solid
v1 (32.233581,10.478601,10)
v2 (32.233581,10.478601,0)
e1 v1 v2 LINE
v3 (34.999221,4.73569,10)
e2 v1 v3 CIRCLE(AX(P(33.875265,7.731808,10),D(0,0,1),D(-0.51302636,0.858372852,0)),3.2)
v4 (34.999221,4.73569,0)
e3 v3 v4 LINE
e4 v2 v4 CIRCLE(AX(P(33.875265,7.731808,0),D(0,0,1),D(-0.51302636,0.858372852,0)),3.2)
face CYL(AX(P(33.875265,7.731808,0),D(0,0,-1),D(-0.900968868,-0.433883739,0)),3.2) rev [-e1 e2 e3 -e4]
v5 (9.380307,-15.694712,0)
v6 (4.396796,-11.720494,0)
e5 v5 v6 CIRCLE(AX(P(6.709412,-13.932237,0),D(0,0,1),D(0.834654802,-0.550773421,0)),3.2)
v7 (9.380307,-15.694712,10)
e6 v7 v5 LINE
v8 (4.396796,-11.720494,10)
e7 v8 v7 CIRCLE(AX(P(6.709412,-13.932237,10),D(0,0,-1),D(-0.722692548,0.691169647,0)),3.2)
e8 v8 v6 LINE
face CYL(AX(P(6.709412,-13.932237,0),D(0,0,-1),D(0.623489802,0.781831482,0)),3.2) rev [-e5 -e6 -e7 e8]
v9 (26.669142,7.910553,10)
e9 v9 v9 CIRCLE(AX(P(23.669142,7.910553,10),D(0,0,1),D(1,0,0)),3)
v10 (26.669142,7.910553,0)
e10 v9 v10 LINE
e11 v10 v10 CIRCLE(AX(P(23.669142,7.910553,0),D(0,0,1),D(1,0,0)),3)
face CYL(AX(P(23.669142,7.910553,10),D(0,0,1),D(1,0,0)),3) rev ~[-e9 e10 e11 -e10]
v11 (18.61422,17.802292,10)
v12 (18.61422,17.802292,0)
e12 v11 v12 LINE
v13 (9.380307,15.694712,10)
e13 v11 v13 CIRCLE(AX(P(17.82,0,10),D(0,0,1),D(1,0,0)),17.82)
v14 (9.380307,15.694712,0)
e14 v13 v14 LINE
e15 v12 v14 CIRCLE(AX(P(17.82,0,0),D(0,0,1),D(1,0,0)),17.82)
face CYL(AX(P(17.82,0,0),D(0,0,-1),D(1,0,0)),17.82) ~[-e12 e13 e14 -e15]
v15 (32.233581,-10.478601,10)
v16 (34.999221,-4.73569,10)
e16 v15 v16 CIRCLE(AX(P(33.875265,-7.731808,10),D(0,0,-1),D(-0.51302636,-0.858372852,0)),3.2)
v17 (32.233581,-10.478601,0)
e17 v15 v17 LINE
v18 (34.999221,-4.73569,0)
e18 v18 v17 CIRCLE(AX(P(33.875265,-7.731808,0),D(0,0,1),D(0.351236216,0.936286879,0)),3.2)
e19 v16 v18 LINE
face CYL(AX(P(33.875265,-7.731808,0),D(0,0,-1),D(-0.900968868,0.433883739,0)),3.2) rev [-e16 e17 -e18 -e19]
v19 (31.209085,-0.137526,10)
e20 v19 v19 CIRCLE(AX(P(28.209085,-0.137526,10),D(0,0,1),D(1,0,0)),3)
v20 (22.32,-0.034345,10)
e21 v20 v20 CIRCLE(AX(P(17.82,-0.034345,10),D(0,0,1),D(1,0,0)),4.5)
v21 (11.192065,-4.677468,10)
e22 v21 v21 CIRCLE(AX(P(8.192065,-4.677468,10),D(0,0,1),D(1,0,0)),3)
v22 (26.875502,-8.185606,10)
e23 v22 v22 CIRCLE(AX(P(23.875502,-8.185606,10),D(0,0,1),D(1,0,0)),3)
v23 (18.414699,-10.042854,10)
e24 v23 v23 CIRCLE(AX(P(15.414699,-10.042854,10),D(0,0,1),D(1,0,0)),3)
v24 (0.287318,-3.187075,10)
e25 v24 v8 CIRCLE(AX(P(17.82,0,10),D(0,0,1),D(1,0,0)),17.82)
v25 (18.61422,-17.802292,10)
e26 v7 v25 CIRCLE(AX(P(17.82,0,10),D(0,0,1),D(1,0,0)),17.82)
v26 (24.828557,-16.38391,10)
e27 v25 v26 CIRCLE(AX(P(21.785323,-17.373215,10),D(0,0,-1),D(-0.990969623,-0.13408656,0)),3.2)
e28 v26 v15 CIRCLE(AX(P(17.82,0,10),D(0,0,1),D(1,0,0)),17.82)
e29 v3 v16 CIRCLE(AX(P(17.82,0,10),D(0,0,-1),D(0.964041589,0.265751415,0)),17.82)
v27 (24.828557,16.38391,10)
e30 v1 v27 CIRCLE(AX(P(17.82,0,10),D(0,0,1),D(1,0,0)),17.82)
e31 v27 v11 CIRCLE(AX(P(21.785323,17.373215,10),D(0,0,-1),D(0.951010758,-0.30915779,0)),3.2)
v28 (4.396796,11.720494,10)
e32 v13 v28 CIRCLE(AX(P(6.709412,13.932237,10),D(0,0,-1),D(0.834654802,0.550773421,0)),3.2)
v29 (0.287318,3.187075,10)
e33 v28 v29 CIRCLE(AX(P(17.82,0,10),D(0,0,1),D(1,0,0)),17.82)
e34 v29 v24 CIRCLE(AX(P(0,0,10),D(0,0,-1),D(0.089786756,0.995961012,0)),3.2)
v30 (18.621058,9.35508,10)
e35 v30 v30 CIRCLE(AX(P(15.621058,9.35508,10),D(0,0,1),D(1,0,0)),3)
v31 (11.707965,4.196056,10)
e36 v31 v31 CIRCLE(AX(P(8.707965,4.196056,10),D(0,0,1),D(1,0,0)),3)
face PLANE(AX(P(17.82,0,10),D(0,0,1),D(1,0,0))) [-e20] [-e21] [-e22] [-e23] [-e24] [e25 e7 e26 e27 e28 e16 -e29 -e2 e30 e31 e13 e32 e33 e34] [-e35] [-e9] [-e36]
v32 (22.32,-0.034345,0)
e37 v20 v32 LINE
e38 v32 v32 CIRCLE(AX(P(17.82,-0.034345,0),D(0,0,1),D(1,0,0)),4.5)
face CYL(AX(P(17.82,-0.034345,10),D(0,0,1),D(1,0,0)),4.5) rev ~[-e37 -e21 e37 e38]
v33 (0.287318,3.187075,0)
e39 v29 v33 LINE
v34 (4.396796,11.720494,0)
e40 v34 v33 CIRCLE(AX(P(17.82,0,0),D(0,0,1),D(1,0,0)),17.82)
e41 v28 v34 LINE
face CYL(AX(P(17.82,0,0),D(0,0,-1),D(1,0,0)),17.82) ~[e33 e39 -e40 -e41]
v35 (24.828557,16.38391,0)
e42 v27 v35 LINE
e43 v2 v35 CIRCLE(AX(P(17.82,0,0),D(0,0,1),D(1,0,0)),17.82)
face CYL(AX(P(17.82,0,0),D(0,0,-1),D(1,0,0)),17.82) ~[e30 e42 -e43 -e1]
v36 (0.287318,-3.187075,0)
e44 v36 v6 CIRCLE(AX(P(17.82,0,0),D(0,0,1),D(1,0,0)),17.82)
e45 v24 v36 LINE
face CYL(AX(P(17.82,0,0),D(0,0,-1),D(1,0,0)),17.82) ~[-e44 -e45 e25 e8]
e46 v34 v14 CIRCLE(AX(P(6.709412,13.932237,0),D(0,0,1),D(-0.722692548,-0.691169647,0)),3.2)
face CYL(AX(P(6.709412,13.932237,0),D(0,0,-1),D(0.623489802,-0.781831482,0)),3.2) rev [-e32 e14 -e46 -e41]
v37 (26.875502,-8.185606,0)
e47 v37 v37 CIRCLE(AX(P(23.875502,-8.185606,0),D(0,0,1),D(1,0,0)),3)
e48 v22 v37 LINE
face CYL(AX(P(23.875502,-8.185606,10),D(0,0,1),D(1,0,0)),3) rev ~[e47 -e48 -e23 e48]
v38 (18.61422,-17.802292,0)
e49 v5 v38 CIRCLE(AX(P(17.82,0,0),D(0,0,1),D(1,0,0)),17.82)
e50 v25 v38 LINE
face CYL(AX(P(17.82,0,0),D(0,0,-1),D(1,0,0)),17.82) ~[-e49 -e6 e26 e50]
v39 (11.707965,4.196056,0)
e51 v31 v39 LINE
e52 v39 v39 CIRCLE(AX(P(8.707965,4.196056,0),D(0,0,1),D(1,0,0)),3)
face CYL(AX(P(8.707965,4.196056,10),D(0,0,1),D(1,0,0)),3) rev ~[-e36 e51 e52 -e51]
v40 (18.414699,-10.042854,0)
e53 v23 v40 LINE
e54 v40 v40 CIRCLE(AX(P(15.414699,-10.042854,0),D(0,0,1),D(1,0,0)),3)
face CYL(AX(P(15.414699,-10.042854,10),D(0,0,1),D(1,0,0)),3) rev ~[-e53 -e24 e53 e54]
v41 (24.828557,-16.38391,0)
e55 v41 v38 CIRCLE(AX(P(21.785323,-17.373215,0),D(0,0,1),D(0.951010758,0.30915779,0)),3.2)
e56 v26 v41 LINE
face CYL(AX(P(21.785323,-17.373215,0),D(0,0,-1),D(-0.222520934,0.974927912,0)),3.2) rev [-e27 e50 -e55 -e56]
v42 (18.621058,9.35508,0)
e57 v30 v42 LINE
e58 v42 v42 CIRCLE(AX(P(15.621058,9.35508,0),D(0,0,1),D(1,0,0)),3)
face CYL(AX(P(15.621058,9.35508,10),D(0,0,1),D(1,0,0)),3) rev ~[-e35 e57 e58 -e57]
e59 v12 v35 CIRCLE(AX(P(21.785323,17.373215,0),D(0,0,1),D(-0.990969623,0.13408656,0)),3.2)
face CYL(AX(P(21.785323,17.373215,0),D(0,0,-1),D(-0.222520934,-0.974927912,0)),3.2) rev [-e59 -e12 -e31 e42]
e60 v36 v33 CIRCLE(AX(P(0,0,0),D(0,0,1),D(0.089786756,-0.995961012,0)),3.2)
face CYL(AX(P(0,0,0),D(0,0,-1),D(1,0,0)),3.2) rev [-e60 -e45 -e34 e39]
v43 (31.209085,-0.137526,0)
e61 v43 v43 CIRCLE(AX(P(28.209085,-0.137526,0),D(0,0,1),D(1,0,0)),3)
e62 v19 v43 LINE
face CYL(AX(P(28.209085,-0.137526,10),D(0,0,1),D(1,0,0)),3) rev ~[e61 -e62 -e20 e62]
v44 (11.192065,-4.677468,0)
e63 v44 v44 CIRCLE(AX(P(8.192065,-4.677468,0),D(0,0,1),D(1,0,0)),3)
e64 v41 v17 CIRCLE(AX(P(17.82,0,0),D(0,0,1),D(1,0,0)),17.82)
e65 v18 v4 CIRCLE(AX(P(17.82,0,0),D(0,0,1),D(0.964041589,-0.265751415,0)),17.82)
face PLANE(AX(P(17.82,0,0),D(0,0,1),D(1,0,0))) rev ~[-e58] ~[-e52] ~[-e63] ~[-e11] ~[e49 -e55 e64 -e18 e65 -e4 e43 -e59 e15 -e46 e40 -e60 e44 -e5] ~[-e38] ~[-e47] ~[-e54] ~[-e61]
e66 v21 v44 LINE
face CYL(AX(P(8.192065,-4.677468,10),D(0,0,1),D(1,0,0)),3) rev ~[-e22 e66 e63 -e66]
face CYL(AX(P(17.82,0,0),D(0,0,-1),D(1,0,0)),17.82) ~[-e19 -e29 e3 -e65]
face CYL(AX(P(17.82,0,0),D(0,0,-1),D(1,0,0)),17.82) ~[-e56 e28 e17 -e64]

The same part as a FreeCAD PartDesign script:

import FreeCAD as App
import Part
import Sketcher
from FreeCAD import Vector
Q = App.Units.Quantity

doc = App.newDocument("Part")
params = doc.addObject("Spreadsheet::Sheet", "Params")
for row, (alias, value) in enumerate([
    ("sketch1_diameter", "6.4 mm"),
    ("pad1_length", "10 mm"),
    ("sketch2_diameter", "35.64 mm"),
    ("pad2_length", "10 mm"),
    ("sketch3_diameter", "9 mm"),
    ("sketch3_diameter2", "6 mm"),
], start=1):
    params.set(f"A{row}", alias)
    params.set(f"B{row}", "=" + value)
    params.setAlias(f"B{row}", alias)

body = doc.addObject("PartDesign::Body", "Body")

# Sketch on XY plane
sketch1 = body.newObject("Sketcher::SketchObject", "Sketch")
sketch1.AttachmentSupport = (doc.getObject("XY_Plane"), [""])
sketch1.MapMode = "FlatFace"
sketch1.addGeometry(Part.Circle(Vector(0, 0, 0), Vector(0, 0, 1), 3.2), False)
sketch1.addConstraint([
    Sketcher.Constraint("Coincident", 0, 3, -1, 1),
    Sketcher.Constraint("Diameter", 0, Q("6.4 mm")),
])
sketch1.setExpression("Constraints[1]", "Params.sketch1_diameter")
pad1 = body.newObject("PartDesign::Pad", "Pad")
pad1.Profile = sketch1
pad1.setExpression("Length", "Params.pad1_length")
body2 = doc.addObject("PartDesign::Body", "Body001")
body2.AllowCompound = True
doc.recompute()

body2.BaseFeature = body
doc.recompute()

body3 = doc.addObject("PartDesign::Body", "Body002")
body3.BaseFeature = body
body3.Placement = App.Placement(Vector(6.709412, -13.932237, 0), App.Rotation(Vector(0, 0, 1), 51.428571))
boolean = body2.newObject("PartDesign::Boolean", "Boolean")
boolean.Type = "Fuse"
boolean.addObjects([body3])
doc.recompute()

body4 = doc.addObject("PartDesign::Body", "Body003")
body4.BaseFeature = body
body4.Placement = App.Placement(Vector(21.785323, -17.373215, 0), App.Rotation(Vector(0, 0, 1), 102.857143))
boolean2 = body2.newObject("PartDesign::Boolean", "Boolean001")
boolean2.Type = "Fuse"
boolean2.addObjects([body4])
doc.recompute()

body5 = doc.addObject("PartDesign::Body", "Body004")
body5.BaseFeature = body
body5.Placement = App.Placement(Vector(33.875265, -7.731808, 0), App.Rotation(Vector(0, 0, 1), 154.285714))
boolean3 = body2.newObject("PartDesign::Boolean", "Boolean002")
boolean3.Type = "Fuse"
boolean3.addObjects([body5])
doc.recompute()

body6 = doc.addObject("PartDesign::Body", "Body005")
body6.BaseFeature = body
body6.Placement = App.Placement(Vector(33.875265, 7.731808, 0), App.Rotation(Vector(0, 0, 1), 205.714286))
boolean4 = body2.newObject("PartDesign::Boolean", "Boolean003")
boolean4.Type = "Fuse"
boolean4.addObjects([body6])
doc.recompute()

body7 = doc.addObject("PartDesign::Body", "Body006")
body7.BaseFeature = body
body7.Placement = App.Placement(Vector(21.785323, 17.373215, 0), App.Rotation(Vector(0, 0, 1), 257.142857))
boolean5 = body2.newObject("PartDesign::Boolean", "Boolean004")
boolean5.Type = "Fuse"
boolean5.addObjects([body7])
doc.recompute()

body.Placement = App.Placement(Vector(6.709412, 13.932237, 0), App.Rotation(Vector(0, 0, 1), 308.571429))
boolean6 = body2.newObject("PartDesign::Boolean", "Boolean005")
boolean6.Type = "Fuse"
boolean6.addObjects([body])
body8 = doc.addObject("PartDesign::Body", "Body007")

# Sketch on XY plane
sketch2 = body8.newObject("Sketcher::SketchObject", "Sketch001")
sketch2.AttachmentSupport = (doc.getObject("XY_Plane007"), [""])
sketch2.MapMode = "FlatFace"
sketch2.addGeometry(Part.Circle(Vector(17.82, 0, 0), Vector(0, 0, 1), 17.82), False)
sketch2.addConstraint([
    Sketcher.Constraint("PointOnObject", 0, 3, -1),
    Sketcher.Constraint("Diameter", 0, Q("35.64 mm")),
    Sketcher.Constraint("DistanceX", -1, 1, 0, 3, Q("17.82 mm")),
])
sketch2.setExpression("Constraints[1]", "Params.sketch2_diameter")
pad2 = body8.newObject("PartDesign::Pad", "Pad001")
pad2.Profile = sketch2
pad2.setExpression("Length", "Params.pad2_length")
doc.recompute()

boolean7 = body8.newObject("PartDesign::Boolean", "Boolean006")
boolean7.Type = "Cut"
boolean7.addObjects([body2])

# Sketch on XY plane
sketch3 = body8.newObject("Sketcher::SketchObject", "Sketch002")
sketch3.AttachmentSupport = (doc.getObject("XY_Plane007"), [""])
sketch3.MapMode = "FlatFace"
sketch3.AttachmentOffset = App.Placement(Vector(0, 0, 10), App.Rotation())
sketch3.addGeometry([
    Part.Circle(Vector(17.82, -0.034345, 0), Vector(0, 0, 1), 4.5),  # 0
    Part.Circle(Vector(15.621058, 9.35508, 0), Vector(0, 0, 1), 3),  # 1
    Part.Circle(Vector(23.669142, 7.910553, 0), Vector(0, 0, 1), 3),  # 2
    Part.Circle(Vector(28.209085, -0.137526, 0), Vector(0, 0, 1), 3),  # 3
    Part.Circle(Vector(23.875502, -8.185606, 0), Vector(0, 0, 1), 3),  # 4
    Part.Circle(Vector(15.414699, -10.042854, 0), Vector(0, 0, 1), 3),  # 5
    Part.Circle(Vector(8.192065, -4.677468, 0), Vector(0, 0, 1), 3),  # 6
    Part.Circle(Vector(8.707965, 4.196056, 0), Vector(0, 0, 1), 3),  # 7
], False)
sketch3.addConstraint([
    Sketcher.Constraint("Equal", 1, 2),
    Sketcher.Constraint("Equal", 2, 3),
    Sketcher.Constraint("Equal", 3, 4),
    Sketcher.Constraint("Equal", 4, 5),
    Sketcher.Constraint("Equal", 5, 6),
    Sketcher.Constraint("Equal", 6, 7),
    Sketcher.Constraint("Diameter", 0, Q("9 mm")),
    Sketcher.Constraint("Diameter", 1, Q("6 mm")),
    Sketcher.Constraint("DistanceX", -1, 1, 0, 3, Q("17.82 mm")),
    Sketcher.Constraint("DistanceX", -1, 1, 5, 3, Q("15.414699 mm")),
    Sketcher.Constraint("DistanceY", 0, 3, 2, 3, Q("7.944898 mm")),
    Sketcher.Constraint("DistanceX", 6, 3, 7, 3, Q("0.5159 mm")),
    Sketcher.Constraint("DistanceY", 0, 3, 7, 3, Q("4.230401 mm")),
    Sketcher.Constraint("DistanceY", -1, 1, 1, 3, Q("9.35508 mm")),
    Sketcher.Constraint("DistanceY", 6, 3, -1, 1, Q("4.677468 mm")),
    Sketcher.Constraint("DistanceY", 3, 3, 2, 3, Q("8.048079 mm")),
    Sketcher.Constraint("DistanceY", 4, 3, 3, 3, Q("8.04808 mm")),
    Sketcher.Constraint("DistanceX", 2, 3, 4, 3, Q("0.20636 mm")),
    Sketcher.Constraint("DistanceY", 5, 3, 4, 3, Q("1.857248 mm")),
    Sketcher.Constraint("DistanceX", 5, 3, 1, 3, Q("0.206359 mm")),
    Sketcher.Constraint("DistanceY", 6, 3, 2, 3, Q("12.588021 mm")),
    Sketcher.Constraint("DistanceX", -1, 1, 2, 3, Q("23.669142 mm")),
    Sketcher.Constraint("DistanceX", -1, 1, 3, 3, Q("28.209085 mm")),
    Sketcher.Constraint("DistanceX", -1, 1, 6, 3, Q("8.192065 mm")),
])
sketch3.setExpression("Constraints[6]", "Params.sketch3_diameter")
sketch3.setExpression("Constraints[7]", "Params.sketch3_diameter2")
pocket1 = body8.newObject("PartDesign::Pocket", "Pocket")
pocket1.Profile = sketch3
pocket1.Type = "ThroughAll"

doc.recompute()
